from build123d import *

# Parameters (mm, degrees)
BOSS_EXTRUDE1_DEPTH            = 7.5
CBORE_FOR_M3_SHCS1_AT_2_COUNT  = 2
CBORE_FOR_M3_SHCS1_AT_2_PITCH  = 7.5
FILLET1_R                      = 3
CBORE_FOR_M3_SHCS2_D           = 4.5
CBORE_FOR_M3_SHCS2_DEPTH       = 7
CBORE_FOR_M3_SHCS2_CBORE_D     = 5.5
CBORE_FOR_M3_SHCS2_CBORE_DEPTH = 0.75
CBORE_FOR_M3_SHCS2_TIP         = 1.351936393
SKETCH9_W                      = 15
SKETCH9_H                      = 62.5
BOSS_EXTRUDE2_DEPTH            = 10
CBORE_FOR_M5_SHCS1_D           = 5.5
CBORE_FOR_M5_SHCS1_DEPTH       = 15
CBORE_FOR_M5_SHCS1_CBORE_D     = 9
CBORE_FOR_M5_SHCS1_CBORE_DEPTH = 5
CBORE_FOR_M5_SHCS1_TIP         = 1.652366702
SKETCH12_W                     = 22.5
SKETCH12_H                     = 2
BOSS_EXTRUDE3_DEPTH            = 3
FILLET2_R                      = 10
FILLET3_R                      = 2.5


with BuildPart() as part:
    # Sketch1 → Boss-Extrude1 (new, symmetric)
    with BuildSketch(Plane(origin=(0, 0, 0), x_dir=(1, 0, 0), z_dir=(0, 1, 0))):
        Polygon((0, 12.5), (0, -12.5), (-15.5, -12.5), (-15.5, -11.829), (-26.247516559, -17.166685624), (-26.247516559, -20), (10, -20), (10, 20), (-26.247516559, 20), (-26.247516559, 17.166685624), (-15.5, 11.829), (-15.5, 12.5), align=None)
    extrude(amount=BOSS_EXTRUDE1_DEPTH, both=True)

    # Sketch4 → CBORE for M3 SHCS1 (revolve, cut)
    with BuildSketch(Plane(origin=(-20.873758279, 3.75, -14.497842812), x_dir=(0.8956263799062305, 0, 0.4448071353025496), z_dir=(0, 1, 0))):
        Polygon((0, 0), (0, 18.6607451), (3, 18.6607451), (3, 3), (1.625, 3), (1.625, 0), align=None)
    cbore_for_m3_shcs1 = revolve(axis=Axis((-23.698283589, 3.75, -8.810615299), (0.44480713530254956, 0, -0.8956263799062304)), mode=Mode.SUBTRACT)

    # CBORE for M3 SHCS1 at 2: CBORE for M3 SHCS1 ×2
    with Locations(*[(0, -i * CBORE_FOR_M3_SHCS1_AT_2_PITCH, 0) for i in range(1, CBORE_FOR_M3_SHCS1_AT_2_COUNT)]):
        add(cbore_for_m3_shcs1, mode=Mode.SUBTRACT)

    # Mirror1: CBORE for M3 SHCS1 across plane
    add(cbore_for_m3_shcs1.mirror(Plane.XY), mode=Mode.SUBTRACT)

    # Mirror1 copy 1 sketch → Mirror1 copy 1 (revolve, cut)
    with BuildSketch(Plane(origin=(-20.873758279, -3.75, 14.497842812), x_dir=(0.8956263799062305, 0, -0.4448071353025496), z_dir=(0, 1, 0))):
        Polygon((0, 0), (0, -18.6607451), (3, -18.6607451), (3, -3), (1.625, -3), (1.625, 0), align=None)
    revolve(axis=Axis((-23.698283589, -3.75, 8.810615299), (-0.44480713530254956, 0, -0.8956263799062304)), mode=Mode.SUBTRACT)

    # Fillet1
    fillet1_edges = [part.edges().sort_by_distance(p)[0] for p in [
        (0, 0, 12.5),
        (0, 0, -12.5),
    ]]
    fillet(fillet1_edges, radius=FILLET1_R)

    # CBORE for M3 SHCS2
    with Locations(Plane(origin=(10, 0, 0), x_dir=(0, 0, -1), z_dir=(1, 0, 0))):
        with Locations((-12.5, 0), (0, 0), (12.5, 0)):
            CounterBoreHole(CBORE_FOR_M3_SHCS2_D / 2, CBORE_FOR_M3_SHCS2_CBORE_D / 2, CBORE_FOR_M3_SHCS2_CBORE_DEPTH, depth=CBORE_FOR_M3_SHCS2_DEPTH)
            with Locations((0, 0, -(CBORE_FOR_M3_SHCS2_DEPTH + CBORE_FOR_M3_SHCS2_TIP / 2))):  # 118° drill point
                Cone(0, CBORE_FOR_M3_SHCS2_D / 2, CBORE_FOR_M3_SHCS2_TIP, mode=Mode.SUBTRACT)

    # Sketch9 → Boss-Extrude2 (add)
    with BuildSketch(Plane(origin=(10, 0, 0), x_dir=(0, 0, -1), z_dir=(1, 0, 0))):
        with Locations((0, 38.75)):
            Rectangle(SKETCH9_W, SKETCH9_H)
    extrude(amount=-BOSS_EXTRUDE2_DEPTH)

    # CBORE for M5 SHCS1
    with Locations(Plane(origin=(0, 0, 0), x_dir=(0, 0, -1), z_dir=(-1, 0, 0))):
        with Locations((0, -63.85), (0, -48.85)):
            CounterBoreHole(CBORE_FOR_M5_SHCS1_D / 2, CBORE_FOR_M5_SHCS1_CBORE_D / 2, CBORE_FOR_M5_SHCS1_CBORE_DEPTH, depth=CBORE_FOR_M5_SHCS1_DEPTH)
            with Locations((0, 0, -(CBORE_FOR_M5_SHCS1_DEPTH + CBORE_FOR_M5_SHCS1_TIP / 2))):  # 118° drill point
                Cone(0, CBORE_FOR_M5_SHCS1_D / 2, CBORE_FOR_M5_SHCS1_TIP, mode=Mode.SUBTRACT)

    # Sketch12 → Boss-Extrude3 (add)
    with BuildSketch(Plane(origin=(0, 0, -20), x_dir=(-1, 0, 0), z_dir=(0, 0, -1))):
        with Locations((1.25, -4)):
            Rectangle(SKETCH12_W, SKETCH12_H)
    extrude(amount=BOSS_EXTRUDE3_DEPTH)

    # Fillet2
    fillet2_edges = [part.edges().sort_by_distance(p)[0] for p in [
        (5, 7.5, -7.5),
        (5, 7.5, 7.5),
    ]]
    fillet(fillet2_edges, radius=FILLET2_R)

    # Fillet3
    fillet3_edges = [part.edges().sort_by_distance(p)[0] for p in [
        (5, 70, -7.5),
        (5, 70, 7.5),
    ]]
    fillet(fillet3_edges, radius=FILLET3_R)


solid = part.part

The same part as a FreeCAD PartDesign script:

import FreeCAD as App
import Part
import Sketcher


def edges_at(feature, points):
    """Names of the edges that pass closest to the given points."""
    edges = feature.Shape.Edges
    near = lambda p: min(range(len(edges)), key=lambda i: edges[i].distToShape(Part.Vertex(*p))[0])
    return sorted({f"Edge{near(p) + 1}" for p in points})


def add_polygon(sketch, points):
    """Adds a closed chain of lines whose ends are joined by coincident constraints."""
    first, n = sketch.GeometryCount, len(points)
    for a, b in zip(points, points[1:] + points[:1]):
        sketch.addGeometry(Part.LineSegment(App.Vector(*a, 0), App.Vector(*b, 0)), False)
    for i in range(n):
        sketch.addConstraint(Sketcher.Constraint("Coincident", first + i, 2, first + (i + 1) % n, 1))

doc = App.newDocument("Part")
body = doc.addObject("PartDesign::Body", "Body")

# Sketch on XZ plane
sketch1 = body.newObject("Sketcher::SketchObject", "Sketch")
sketch1.AttachmentSupport = (doc.getObject("XZ_Plane"), [""])
sketch1.MapMode = "FlatFace"
add_polygon(sketch1, [(0, -12.5), (0, 12.5), (-15.5, 12.5), (-15.5, 11.829), (-26.247517, 17.166686), (-26.247517, 20), (10, 20), (10, -20), (-26.247517, -20), (-26.247517, -17.166686), (-15.5, -11.829), (-15.5, -12.5)])  # lines 0-11
sketch1.addConstraint([
    Sketcher.Constraint("Vertical", 0),
    Sketcher.Constraint("Horizontal", 1),
    Sketcher.Constraint("Vertical", 2),
    Sketcher.Constraint("Vertical", 4),
    Sketcher.Constraint("Horizontal", 5),
    Sketcher.Constraint("Vertical", 6),
    Sketcher.Constraint("Horizontal", 7),
    Sketcher.Constraint("Vertical", 8),
    Sketcher.Constraint("Vertical", 10),
    Sketcher.Constraint("Horizontal", 11),
    Sketcher.Constraint("Symmetric", 0, 2, 11, 2, -1, 1),
    Sketcher.Constraint("Symmetric", 4, 2, 7, 2, -1),
    Sketcher.Constraint("Symmetric", 2, 2, 9, 2, -1),
    Sketcher.Constraint("Equal", 4, 8),
    Sketcher.Constraint("DistanceY", 0, 1, 0, 2, 25.0),
    Sketcher.Constraint("DistanceY", 6, 2, 6, 1, 40.0),
    Sketcher.Constraint("Distance", 3, 12.0),
    Sketcher.Constraint("DistanceX", 1, 2, 1, 1, 15.5),
    Sketcher.Constraint("DistanceX", -1, 1, 5, 2, 10.0),
    Sketcher.Constraint("DistanceY", 2, 2, 2, 1, 0.671),
    Sketcher.Constraint("DistanceX", 5, 1, 5, 2, 36.247517),
])
pad1 = body.newObject("PartDesign::Pad", "Pad")
pad1.Profile = sketch1
pad1.Length = 15
pad1.Midplane = True

# Sketch on XZ plane
sketch2 = body.newObject("Sketcher::SketchObject", "Sketch001")
sketch2.AttachmentSupport = (doc.getObject("XZ_Plane"), [""])
sketch2.MapMode = "FlatFace"
sketch2.AttachmentOffset = App.Placement(App.Vector(0, 0, -3.75), App.Rotation())
add_polygon(sketch2, [(-12.573326, -31.210898), (-20.873758, -14.497843), (-19.418365, -13.775031), (-18.083944, -16.46191), (-16.852458, -15.850301), (-9.886447, -29.876477)])  # lines 0-5
sketch2.addGeometry(Part.LineSegment(App.Vector(-20.873758, -14.497843, 0), App.Vector(-12.573326, -31.210898, 0)), True)  # axis
sketch2.addConstraint([
    Sketcher.Constraint("Coincident", 6, 1, 0, 2),
    Sketcher.Constraint("Coincident", 6, 2, 5, 2),
    Sketcher.Constraint("Perpendicular", 0, 1),
    Sketcher.Constraint("Perpendicular", 1, 2),
    Sketcher.Constraint("Perpendicular", 2, 3),
    Sketcher.Constraint("Perpendicular", 3, 4),
    Sketcher.Constraint("Perpendicular", 4, 5),
    Sketcher.Constraint("Equal", 2, 5),
    Sketcher.Constraint("Distance", 2, 3.0),
    Sketcher.Constraint("Distance", 1, 1.625),
    Sketcher.Constraint("DistanceY", 3, 2, -1, 1, 15.850301),
    Sketcher.Constraint("DistanceY", 5, 2, -1, 1, 31.210898),
    Sketcher.Constraint("DistanceX", 0, 2, 3, 2, 4.021301),
    Sketcher.Constraint("DistanceX", 0, 2, -1, 1, 20.873758),
])
groove = body.newObject("PartDesign::Groove", "Groove")
groove.Profile = sketch2
groove.ReferenceAxis = (sketch2, ["Axis0"])
groove.Angle = 360
doc.recompute()

linearpattern = body.newObject("PartDesign::LinearPattern", "LinearPattern")
linearpattern.Originals = [groove]
linearpattern.Direction = (doc.getObject("Y_Axis"), [""])
linearpattern.Mode = "offset"
linearpattern.Offset = 7.5
linearpattern.Occurrences = 2
linearpattern.Reversed = True
body.Tip = linearpattern
doc.recompute()

mirrored = body.newObject("PartDesign::Mirrored", "Mirrored")
mirrored.Originals = [groove]
mirrored.MirrorPlane = (doc.getObject("XY_Plane"), [""])
body.Tip = mirrored

# Sketch on XZ plane
sketch3 = body.newObject("Sketcher::SketchObject", "Sketch002")
sketch3.AttachmentSupport = (doc.getObject("XZ_Plane"), [""])
sketch3.MapMode = "FlatFace"
sketch3.AttachmentOffset = App.Placement(App.Vector(0, 0, 3.75), App.Rotation())
add_polygon(sketch3, [(-20.873758, 14.497843), (-12.573326, 31.210898), (-9.886447, 29.876477), (-16.852458, 15.850301), (-18.083944, 16.46191), (-19.418365, 13.775031)])  # lines 0-5
sketch3.addGeometry(Part.LineSegment(App.Vector(-12.573326, 31.210898, 0), App.Vector(-20.873758, 14.497843, 0)), True)  # axis
sketch3.addConstraint([
    Sketcher.Constraint("Coincident", 6, 1, 0, 2),
    Sketcher.Constraint("Coincident", 6, 2, 5, 2),
    Sketcher.Constraint("Perpendicular", 0, 1),
    Sketcher.Constraint("Perpendicular", 1, 2),
    Sketcher.Constraint("Perpendicular", 2, 3),
    Sketcher.Constraint("Perpendicular", 3, 4),
    Sketcher.Constraint("Perpendicular", 4, 5),
    Sketcher.Constraint("Equal", 1, 4),
    Sketcher.Constraint("Distance", 1, 3.0),
    Sketcher.Constraint("Distance", 3, 1.375),
    Sketcher.Constraint("DistanceY", -1, 1, 0, 2, 31.210898),
    Sketcher.Constraint("DistanceY", -1, 1, 2, 2, 15.850301),
    Sketcher.Constraint("DistanceX", 5, 2, 2, 2, 4.021301),
    Sketcher.Constraint("DistanceX", 5, 2, -1, 1, 20.873758),
])
groove2 = body.newObject("PartDesign::Groove", "Groove001")
groove2.Profile = sketch3
groove2.ReferenceAxis = (sketch3, ["Axis0"])
groove2.Angle = 360
doc.recompute()

fillet = body.newObject("PartDesign::Fillet", "Fillet")
fillet.Base = (groove2, edges_at(groove2, [(0, 0, 12.5), (0, 0, -12.5)]))
fillet.Radius = 3

# Sketch on YZ plane
sketch4 = body.newObject("Sketcher::SketchObject", "Sketch003")
sketch4.AttachmentSupport = (doc.getObject("YZ_Plane"), [""])
sketch4.MapMode = "FlatFace"
sketch4.AttachmentOffset = App.Placement(App.Vector(0, 0, 10), App.Rotation())
sketch4.addGeometry([
    Part.Circle(App.Vector(0, 12.5, 0), App.Vector(0, 0, 1), 2.25),
    Part.Circle(App.Vector(0, 0, 0), App.Vector(0, 0, 1), 2.25),
    Part.Circle(App.Vector(0, -12.5, 0), App.Vector(0, 0, 1), 2.25),
], False)
sketch4.addConstraint([
    Sketcher.Constraint("Coincident", 1, 3, -1, 1),
    Sketcher.Constraint("Equal", 0, 1),
    Sketcher.Constraint("Equal", 1, 2),
    Sketcher.Constraint("Symmetric", 0, 3, 2, 3, -1, 1),
    Sketcher.Constraint("PointOnObject", 0, 3, -2),
    Sketcher.Constraint("Diameter", 0, 4.5),
    Sketcher.Constraint("DistanceY", 2, 3, 0, 3, 25.0),
])
doc.recompute()
hole = body.newObject("PartDesign::Hole", "Hole")
hole.Profile = sketch4
hole.ThreadType = "None"
hole.Diameter = 4.5
hole.DepthType = "Dimension"
hole.Depth = 7
hole.DrillPoint = "Angled"
hole.DrillPointAngle = 118
hole.HoleCutType = "Counterbore"
hole.HoleCutDiameter = 5.5
hole.HoleCutDepth = 0.75

# Sketch on YZ plane
sketch5 = body.newObject("Sketcher::SketchObject", "Sketch004")
sketch5.AttachmentSupport = (doc.getObject("YZ_Plane"), [""])
sketch5.MapMode = "FlatFace"
sketch5.AttachmentOffset = App.Placement(App.Vector(0, 0, 10), App.Rotation())
add_polygon(sketch5, [(70, 7.5), (7.5, 7.5), (7.5, -7.5), (70, -7.5)])  # lines 0-3
sketch5.addConstraint([
    Sketcher.Constraint("Horizontal", 0),
    Sketcher.Constraint("Vertical", 1),
    Sketcher.Constraint("Horizontal", 2),
    Sketcher.Constraint("Vertical", 3),
    Sketcher.Constraint("DistanceY", 1, 2, 1, 1, 15.0),
    Sketcher.Constraint("DistanceX", 0, 2, 0, 1, 62.5),
    Sketcher.Constraint("DistanceX", -1, 1, 2, 2, 70.0),
    Sketcher.Constraint("DistanceY", -1, 1, 0, 2, 7.5),
])
pad2 = body.newObject("PartDesign::Pad", "Pad001")
pad2.Profile = sketch5
pad2.Length = 10
pad2.Reversed = True

# Sketch on YZ plane
sketch6 = body.newObject("Sketcher::SketchObject", "Sketch005")
sketch6.AttachmentSupport = (doc.getObject("YZ_Plane"), [""])
sketch6.MapMode = "FlatFace"
sketch6.addGeometry([
    Part.Circle(App.Vector(63.85, 0, 0), App.Vector(0, 0, 1), 2.75),
    Part.Circle(App.Vector(48.85, 0, 0), App.Vector(0, 0, 1), 2.75),
], False)
sketch6.addConstraint([
    Sketcher.Constraint("Equal", 0, 1),
    Sketcher.Constraint("PointOnObject", 0, 3, -1),
    Sketcher.Constraint("PointOnObject", 1, 3, -1),
    Sketcher.Constraint("Diameter", 0, 5.5),
    Sketcher.Constraint("DistanceX", 1, 3, 0, 3, 15.0),
    Sketcher.Constraint("DistanceX", -1, 1, 0, 3, 63.85),
])
doc.recompute()
hole2 = body.newObject("PartDesign::Hole", "Hole001")
hole2.Profile = sketch6
hole2.ThreadType = "None"
hole2.Diameter = 5.5
hole2.DepthType = "Dimension"
hole2.Depth = 15
hole2.DrillPoint = "Angled"
hole2.DrillPointAngle = 118
hole2.HoleCutType = "Counterbore"
hole2.HoleCutDiameter = 9
hole2.HoleCutDepth = 5
hole2.Reversed = True

# Sketch on XY plane
sketch7 = body.newObject("Sketcher::SketchObject", "Sketch006")
sketch7.AttachmentSupport = (doc.getObject("XY_Plane"), [""])
sketch7.MapMode = "FlatFace"
sketch7.AttachmentOffset = App.Placement(App.Vector(0, 0, -20), App.Rotation())
add_polygon(sketch7, [(10, -3), (10, -5), (-12.5, -5), (-12.5, -3)])  # lines 0-3
sketch7.addConstraint([
    Sketcher.Constraint("Vertical", 0),
    Sketcher.Constraint("Horizontal", 1),
    Sketcher.Constraint("Vertical", 2),
    Sketcher.Constraint("Horizontal", 3),
    Sketcher.Constraint("DistanceY", 0, 2, 0, 1, 2.0),
    Sketcher.Constraint("DistanceX", 1, 2, 1, 1, 22.5),
    Sketcher.Constraint("DistanceX", -1, 1, 0, 2, 10.0),
    Sketcher.Constraint("DistanceY", 0, 2, -1, 1, 5.0),
])
pad3 = body.newObject("PartDesign::Pad", "Pad002")
pad3.Profile = sketch7
pad3.Length = 3
pad3.Reversed = True
doc.recompute()

fillet2 = body.newObject("PartDesign::Fillet", "Fillet001")
fillet2.Base = (pad3, edges_at(pad3, [(5, 7.5, -7.5), (5, 7.5, 7.5)]))
fillet2.Radius = 10
doc.recompute()

fillet3 = body.newObject("PartDesign::Fillet", "Fillet002")
fillet3.Base = (fillet2, edges_at(fillet2, [(5, 70, -7.5), (5, 70, 7.5)]))
fillet3.Radius = 2.5

doc.recompute()
